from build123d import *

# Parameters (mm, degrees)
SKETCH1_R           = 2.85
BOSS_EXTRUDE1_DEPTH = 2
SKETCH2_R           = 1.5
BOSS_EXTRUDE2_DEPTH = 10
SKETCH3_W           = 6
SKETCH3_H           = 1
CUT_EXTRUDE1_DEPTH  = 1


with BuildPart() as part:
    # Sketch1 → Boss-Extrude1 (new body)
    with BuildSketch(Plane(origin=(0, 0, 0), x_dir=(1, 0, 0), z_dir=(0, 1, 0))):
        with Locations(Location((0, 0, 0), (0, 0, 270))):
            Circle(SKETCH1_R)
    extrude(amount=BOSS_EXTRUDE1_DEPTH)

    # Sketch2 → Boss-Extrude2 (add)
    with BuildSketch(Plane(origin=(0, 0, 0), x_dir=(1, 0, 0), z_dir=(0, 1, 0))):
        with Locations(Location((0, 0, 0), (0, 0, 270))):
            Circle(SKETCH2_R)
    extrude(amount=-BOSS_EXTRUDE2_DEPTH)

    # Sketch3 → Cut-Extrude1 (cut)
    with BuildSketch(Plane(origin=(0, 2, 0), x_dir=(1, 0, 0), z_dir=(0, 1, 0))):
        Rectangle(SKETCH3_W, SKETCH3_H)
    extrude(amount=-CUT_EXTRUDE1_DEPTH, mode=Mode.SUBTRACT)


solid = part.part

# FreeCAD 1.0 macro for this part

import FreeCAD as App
import Part
import Sketcher
from FreeCAD import Vector
Q = App.Units.Quantity

doc = App.newDocument("Part")
body = doc.addObject("PartDesign::Body", "Body")

# Sketch on XZ plane
sketch1 = body.newObject("Sketcher::SketchObject", "Sketch")
sketch1.AttachmentSupport = (doc.getObject("XZ_Plane"), [""])
sketch1.MapMode = "FlatFace"
sketch1.addGeometry(Part.Circle(Vector(0, 0, 0), Vector(0, 0, 1), 2.85), False)
sketch1.addConstraint([
    Sketcher.Constraint("Coincident", 0, 3, -1, 1),
    Sketcher.Constraint("Diameter", 0, Q("5.7 mm")),
])
pad1 = body.newObject("PartDesign::Pad", "Pad")
pad1.Profile = sketch1
pad1.Length = 2
pad1.Reversed = True

# Sketch on XZ plane
sketch2 = body.newObject("Sketcher::SketchObject", "Sketch001")
sketch2.AttachmentSupport = (doc.getObject("XZ_Plane"), [""])
sketch2.MapMode = "FlatFace"
sketch2.addGeometry(Part.Circle(Vector(0, 0, 0), Vector(0, 0, 1), 1.5), False)
sketch2.addConstraint([
    Sketcher.Constraint("Coincident", 0, 3, -1, 1),
    Sketcher.Constraint("Diameter", 0, Q("3 mm")),
])
pad2 = body.newObject("PartDesign::Pad", "Pad001")
pad2.Profile = sketch2
pad2.Length = 10

# Sketch on XZ plane
sketch3 = body.newObject("Sketcher::SketchObject", "Sketch002")
sketch3.AttachmentSupport = (doc.getObject("XZ_Plane"), [""])
sketch3.MapMode = "FlatFace"
sketch3.AttachmentOffset = App.Placement(Vector(0, 0, -2), App.Rotation())
sketch3.addGeometry([
    Part.LineSegment(Vector(-3, -0.5, 0), Vector(-3, 0.5, 0)),
    Part.LineSegment(Vector(-3, 0.5, 0), Vector(3, 0.5, 0)),
    Part.LineSegment(Vector(3, 0.5, 0), Vector(3, -0.5, 0)),
    Part.LineSegment(Vector(3, -0.5, 0), Vector(-3, -0.5, 0)),
], False)
sketch3.addConstraint([
    Sketcher.Constraint("Coincident", 0, 2, 1, 1),
    Sketcher.Constraint("Coincident", 1, 2, 2, 1),
    Sketcher.Constraint("Coincident", 2, 2, 3, 1),
    Sketcher.Constraint("Coincident", 3, 2, 0, 1),
    Sketcher.Constraint("Vertical", 0),
    Sketcher.Constraint("Horizontal", 1),
    Sketcher.Constraint("Vertical", 2),
    Sketcher.Constraint("Horizontal", 3),
    Sketcher.Constraint("Symmetric", 0, 2, 2, 2, -1, 1),
    Sketcher.Constraint("DistanceX", 1, 1, 1, 2, Q("6 mm")),
    Sketcher.Constraint("DistanceY", 0, 1, 0, 2, Q("1 mm")),
])
pocket1 = body.newObject("PartDesign::Pocket", "Pocket")
pocket1.Profile = sketch3
pocket1.Length = 1
pocket1.Reversed = True

doc.recompute()
